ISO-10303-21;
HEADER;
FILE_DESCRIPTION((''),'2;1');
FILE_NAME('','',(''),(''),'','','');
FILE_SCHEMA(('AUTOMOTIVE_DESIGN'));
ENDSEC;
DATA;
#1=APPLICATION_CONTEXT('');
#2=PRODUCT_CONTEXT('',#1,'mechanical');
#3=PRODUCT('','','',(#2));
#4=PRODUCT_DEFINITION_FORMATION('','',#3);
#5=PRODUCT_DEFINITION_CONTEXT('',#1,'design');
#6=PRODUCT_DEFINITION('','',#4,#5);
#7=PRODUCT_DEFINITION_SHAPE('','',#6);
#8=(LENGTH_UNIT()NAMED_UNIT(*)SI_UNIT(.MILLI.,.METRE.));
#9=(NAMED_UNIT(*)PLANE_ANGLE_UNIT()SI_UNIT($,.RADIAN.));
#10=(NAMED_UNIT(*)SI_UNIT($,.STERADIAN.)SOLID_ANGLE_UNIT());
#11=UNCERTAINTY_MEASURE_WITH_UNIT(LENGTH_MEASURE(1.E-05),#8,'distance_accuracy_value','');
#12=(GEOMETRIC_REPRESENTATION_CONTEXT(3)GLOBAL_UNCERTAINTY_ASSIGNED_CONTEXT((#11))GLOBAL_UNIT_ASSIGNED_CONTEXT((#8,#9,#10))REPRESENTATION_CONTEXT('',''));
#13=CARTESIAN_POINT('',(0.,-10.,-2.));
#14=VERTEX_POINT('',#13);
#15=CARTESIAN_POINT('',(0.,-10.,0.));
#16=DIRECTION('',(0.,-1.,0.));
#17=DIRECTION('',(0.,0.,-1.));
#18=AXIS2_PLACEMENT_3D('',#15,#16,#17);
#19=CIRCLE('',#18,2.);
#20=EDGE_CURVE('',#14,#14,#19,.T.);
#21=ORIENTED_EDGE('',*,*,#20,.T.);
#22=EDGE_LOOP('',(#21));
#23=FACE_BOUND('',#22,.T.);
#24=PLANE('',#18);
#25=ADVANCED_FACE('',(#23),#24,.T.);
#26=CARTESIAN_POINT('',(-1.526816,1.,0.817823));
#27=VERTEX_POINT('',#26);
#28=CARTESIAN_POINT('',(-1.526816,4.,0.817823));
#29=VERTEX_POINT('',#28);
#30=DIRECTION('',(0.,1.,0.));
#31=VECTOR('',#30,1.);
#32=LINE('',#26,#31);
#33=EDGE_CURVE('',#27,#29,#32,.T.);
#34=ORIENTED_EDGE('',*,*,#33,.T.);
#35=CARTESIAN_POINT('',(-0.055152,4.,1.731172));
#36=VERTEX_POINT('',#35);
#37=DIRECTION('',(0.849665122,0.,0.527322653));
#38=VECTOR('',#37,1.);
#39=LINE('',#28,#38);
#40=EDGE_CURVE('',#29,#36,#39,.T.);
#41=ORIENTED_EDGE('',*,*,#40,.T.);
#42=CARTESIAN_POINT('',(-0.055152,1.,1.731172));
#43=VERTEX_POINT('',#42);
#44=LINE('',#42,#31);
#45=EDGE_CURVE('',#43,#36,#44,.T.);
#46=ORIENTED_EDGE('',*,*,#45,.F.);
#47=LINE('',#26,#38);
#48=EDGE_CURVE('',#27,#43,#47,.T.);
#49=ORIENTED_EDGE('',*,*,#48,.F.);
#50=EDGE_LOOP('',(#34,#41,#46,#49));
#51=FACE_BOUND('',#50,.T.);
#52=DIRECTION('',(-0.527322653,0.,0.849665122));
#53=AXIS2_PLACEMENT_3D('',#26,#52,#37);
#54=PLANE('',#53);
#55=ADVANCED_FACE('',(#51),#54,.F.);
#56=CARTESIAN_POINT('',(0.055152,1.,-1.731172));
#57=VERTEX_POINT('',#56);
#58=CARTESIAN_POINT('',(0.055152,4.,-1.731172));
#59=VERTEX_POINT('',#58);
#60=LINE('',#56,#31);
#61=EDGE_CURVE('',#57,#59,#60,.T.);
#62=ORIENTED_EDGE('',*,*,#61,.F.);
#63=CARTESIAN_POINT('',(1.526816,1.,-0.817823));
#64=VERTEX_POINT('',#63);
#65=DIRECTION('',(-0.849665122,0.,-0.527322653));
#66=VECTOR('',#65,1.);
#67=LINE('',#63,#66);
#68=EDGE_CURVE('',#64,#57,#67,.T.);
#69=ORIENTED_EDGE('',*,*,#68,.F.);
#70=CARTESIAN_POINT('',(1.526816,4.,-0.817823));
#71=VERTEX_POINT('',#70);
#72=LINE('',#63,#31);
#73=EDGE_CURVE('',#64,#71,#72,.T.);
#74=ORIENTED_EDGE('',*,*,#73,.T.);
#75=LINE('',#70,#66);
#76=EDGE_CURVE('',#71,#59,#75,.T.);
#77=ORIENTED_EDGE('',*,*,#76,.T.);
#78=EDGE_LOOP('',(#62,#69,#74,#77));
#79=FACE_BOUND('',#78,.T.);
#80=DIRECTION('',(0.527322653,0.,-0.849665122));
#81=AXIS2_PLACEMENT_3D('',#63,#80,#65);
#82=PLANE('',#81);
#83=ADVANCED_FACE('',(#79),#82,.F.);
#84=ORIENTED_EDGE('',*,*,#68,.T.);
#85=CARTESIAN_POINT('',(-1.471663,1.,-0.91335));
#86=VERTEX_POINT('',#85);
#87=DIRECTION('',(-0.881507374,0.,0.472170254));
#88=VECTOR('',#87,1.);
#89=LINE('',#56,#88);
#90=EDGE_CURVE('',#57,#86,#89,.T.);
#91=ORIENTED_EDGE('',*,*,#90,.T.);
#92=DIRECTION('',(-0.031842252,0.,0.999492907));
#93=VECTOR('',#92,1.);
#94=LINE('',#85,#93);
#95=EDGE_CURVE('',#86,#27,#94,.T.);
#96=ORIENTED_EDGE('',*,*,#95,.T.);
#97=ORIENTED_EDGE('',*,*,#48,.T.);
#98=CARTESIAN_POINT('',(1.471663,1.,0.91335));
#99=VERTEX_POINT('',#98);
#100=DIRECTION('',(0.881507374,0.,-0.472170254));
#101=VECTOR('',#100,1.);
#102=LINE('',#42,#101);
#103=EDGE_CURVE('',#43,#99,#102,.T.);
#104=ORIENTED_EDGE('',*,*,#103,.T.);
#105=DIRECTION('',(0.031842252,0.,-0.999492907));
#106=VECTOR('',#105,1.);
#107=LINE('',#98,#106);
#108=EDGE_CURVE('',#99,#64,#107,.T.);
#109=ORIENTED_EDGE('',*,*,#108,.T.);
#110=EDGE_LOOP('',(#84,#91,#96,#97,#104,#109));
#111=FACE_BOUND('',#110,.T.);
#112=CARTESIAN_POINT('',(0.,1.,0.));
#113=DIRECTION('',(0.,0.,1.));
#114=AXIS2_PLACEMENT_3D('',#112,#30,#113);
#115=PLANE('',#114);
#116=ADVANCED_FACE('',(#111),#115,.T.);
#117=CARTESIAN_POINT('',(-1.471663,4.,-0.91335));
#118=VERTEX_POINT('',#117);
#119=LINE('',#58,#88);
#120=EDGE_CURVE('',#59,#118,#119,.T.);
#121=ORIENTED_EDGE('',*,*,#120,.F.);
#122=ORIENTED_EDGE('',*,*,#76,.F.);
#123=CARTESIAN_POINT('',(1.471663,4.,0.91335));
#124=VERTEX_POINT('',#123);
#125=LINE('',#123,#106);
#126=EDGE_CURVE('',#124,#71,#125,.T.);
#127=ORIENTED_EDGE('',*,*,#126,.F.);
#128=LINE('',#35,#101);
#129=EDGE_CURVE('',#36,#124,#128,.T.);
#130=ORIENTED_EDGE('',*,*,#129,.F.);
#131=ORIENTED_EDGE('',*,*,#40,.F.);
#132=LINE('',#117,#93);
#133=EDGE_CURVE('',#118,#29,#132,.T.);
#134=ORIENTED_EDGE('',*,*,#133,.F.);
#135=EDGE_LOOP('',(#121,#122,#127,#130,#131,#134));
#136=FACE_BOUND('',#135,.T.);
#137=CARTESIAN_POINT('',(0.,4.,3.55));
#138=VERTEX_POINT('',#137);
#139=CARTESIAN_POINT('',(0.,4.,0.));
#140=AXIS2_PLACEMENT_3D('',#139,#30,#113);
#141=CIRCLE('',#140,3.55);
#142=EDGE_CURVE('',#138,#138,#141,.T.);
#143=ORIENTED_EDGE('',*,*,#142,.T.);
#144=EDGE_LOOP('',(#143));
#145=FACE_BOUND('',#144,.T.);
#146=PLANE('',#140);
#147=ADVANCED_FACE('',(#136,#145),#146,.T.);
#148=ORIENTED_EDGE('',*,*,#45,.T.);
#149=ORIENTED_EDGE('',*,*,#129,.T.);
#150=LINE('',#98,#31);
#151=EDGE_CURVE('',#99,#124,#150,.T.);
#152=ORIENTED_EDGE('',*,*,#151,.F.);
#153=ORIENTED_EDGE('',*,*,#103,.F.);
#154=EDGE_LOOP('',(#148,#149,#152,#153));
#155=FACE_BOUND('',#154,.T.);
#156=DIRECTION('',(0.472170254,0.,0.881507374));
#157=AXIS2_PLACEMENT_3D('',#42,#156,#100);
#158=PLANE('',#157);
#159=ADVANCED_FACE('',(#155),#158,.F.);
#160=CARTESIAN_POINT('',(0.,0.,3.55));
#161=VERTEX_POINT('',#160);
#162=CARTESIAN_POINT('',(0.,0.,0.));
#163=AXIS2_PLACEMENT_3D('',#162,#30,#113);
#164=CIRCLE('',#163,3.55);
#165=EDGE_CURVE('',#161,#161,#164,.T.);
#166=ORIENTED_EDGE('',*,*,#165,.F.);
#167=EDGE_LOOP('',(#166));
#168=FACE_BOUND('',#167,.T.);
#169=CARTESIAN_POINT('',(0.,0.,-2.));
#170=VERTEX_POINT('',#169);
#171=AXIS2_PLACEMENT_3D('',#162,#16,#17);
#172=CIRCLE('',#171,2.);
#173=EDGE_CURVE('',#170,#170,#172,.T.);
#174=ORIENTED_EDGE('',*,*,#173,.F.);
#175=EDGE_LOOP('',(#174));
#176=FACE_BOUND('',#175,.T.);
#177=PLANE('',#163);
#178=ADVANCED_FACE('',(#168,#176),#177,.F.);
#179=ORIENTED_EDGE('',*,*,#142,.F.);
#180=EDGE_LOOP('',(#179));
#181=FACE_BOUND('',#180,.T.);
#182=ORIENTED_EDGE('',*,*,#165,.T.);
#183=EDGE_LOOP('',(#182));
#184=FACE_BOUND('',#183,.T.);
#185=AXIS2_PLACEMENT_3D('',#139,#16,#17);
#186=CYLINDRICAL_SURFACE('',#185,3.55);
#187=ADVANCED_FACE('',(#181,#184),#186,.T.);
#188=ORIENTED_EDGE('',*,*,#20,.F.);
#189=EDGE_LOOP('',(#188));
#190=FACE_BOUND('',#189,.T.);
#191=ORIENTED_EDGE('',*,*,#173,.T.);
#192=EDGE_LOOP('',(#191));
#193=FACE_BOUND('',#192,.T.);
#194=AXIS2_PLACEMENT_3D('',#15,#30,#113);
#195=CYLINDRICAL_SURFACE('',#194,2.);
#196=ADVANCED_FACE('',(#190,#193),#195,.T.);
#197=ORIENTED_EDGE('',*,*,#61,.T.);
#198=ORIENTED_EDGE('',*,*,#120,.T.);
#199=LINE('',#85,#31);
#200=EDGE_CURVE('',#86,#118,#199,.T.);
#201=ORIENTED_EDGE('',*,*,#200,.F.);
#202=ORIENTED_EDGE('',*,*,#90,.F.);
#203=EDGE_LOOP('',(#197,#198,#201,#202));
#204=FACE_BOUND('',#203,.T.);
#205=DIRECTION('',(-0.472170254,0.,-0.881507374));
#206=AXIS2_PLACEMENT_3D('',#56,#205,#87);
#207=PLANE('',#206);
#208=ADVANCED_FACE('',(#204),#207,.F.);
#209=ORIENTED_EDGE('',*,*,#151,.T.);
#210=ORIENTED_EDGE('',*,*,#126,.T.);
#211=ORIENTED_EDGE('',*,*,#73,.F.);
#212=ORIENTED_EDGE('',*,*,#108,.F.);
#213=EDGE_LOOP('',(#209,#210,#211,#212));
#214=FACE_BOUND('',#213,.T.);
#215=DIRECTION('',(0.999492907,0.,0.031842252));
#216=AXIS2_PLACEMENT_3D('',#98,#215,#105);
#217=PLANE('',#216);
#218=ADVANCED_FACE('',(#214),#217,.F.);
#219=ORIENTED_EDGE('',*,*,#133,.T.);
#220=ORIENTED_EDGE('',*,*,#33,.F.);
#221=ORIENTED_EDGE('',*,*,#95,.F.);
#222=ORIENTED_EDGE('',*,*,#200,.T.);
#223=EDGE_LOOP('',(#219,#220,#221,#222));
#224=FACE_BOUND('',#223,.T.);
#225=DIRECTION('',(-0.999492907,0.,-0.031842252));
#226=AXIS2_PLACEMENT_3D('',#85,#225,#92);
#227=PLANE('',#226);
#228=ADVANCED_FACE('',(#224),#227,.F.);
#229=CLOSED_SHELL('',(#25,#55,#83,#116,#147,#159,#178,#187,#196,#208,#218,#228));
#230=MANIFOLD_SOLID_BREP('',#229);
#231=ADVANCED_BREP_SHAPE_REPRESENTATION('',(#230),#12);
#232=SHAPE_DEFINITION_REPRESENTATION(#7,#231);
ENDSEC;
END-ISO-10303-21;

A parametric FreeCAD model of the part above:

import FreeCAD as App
import Part
import Sketcher
Q = App.Units.Quantity

doc = App.newDocument("Part")
body = doc.addObject("PartDesign::Body", "Body")

sketch1 = doc.addObject("Sketcher::SketchObject", "Sketch")
body.addObject(sketch1)
sketch1.AttachmentSupport = (doc.XZ_Plane, [""])
sketch1.MapMode = "FlatFace"
sketch1.addGeometry(Part.Circle(App.Vector(0, 0, 0), App.Vector(0, 0, 1), 3.5), False)
sketch1.addConstraint([
    Sketcher.Constraint("Coincident", 0, 3, -1, 1),
    Sketcher.Constraint("Diameter", 0, Q("7.1 mm")),
])
pad1 = doc.addObject("PartDesign::Pad", "Pad")
body.addObject(pad1)
pad1.Profile = sketch1
pad1.Length = 4
pad1.Reversed = True

sketch2 = doc.addObject("Sketcher::SketchObject", "Sketch001")
body.addObject(sketch2)
sketch2.AttachmentSupport = (doc.XZ_Plane, [""])
sketch2.MapMode = "FlatFace"
sketch2.addGeometry(Part.Circle(App.Vector(0, 0, 0), App.Vector(0, 0, 1), 2), False)
sketch2.addConstraint([
    Sketcher.Constraint("Coincident", 0, 3, -1, 1),
    Sketcher.Constraint("Diameter", 0, Q("4 mm")),
])
pad2 = doc.addObject("PartDesign::Pad", "Pad001")
body.addObject(pad2)
pad2.Profile = sketch2
pad2.Length = 10

sketch3 = doc.addObject("Sketcher::SketchObject", "Sketch002")
body.addObject(sketch3)
sketch3.AttachmentSupport = (doc.XZ_Plane, [""])
sketch3.MapMode = "FlatFace"
sketch3.AttachmentOffset = App.Placement(App.Vector(0, 0, -4), App.Rotation())
sketch3.addGeometry([
    Part.LineSegment(App.Vector(0.1, -1.7, 0), App.Vector(-1.5, -0.9, 0)),
    Part.LineSegment(App.Vector(-1.5, -0.9, 0), App.Vector(-1.5, 0.8, 0)),
    Part.LineSegment(App.Vector(-1.5, 0.8, 0), App.Vector(-0.1, 1.7, 0)),
    Part.LineSegment(App.Vector(-0.1, 1.7, 0), App.Vector(1.5, 0.9, 0)),
    Part.LineSegment(App.Vector(1.5, 0.9, 0), App.Vector(1.5, -0.8, 0)),
    Part.LineSegment(App.Vector(1.5, -0.8, 0), App.Vector(0.1, -1.7, 0)),
], False)
sketch3.addConstraint([
    Sketcher.Constraint("Coincident", 0, 2, 1, 1),
    Sketcher.Constraint("Coincident", 1, 2, 2, 1),
    Sketcher.Constraint("Coincident", 2, 2, 3, 1),
    Sketcher.Constraint("Coincident", 3, 2, 4, 1),
    Sketcher.Constraint("Coincident", 4, 2, 5, 1),
    Sketcher.Constraint("Coincident", 5, 2, 0, 1),
    Sketcher.Constraint("Symmetric", 0, 2, 3, 2, -1, 1),
    Sketcher.Constraint("Symmetric", 1, 2, 4, 2, -1, 1),
    Sketcher.Constraint("Symmetric", 2, 2, 5, 2, -1, 1),
    Sketcher.Constraint("Equal", 0, 1),
    Sketcher.Constraint("Equal", 1, 2),
    Sketcher.Constraint("DistanceY", 0, 2, 3, 2, Q("1.826699 mm")),
    Sketcher.Constraint("Distance", 0, Q("1.732051 mm")),
    Sketcher.Constraint("DistanceY", 1, 2, 2, 2, Q("0.91335 mm")),
    Sketcher.Constraint("DistanceX", 0, 2, 2, 2, Q("1.416511 mm")),
])
pocket1 = doc.addObject("PartDesign::Pocket", "Pocket")
body.addObject(pocket1)
pocket1.Profile = sketch3
pocket1.Length = 3
pocket1.Reversed = True

doc.recompute()
